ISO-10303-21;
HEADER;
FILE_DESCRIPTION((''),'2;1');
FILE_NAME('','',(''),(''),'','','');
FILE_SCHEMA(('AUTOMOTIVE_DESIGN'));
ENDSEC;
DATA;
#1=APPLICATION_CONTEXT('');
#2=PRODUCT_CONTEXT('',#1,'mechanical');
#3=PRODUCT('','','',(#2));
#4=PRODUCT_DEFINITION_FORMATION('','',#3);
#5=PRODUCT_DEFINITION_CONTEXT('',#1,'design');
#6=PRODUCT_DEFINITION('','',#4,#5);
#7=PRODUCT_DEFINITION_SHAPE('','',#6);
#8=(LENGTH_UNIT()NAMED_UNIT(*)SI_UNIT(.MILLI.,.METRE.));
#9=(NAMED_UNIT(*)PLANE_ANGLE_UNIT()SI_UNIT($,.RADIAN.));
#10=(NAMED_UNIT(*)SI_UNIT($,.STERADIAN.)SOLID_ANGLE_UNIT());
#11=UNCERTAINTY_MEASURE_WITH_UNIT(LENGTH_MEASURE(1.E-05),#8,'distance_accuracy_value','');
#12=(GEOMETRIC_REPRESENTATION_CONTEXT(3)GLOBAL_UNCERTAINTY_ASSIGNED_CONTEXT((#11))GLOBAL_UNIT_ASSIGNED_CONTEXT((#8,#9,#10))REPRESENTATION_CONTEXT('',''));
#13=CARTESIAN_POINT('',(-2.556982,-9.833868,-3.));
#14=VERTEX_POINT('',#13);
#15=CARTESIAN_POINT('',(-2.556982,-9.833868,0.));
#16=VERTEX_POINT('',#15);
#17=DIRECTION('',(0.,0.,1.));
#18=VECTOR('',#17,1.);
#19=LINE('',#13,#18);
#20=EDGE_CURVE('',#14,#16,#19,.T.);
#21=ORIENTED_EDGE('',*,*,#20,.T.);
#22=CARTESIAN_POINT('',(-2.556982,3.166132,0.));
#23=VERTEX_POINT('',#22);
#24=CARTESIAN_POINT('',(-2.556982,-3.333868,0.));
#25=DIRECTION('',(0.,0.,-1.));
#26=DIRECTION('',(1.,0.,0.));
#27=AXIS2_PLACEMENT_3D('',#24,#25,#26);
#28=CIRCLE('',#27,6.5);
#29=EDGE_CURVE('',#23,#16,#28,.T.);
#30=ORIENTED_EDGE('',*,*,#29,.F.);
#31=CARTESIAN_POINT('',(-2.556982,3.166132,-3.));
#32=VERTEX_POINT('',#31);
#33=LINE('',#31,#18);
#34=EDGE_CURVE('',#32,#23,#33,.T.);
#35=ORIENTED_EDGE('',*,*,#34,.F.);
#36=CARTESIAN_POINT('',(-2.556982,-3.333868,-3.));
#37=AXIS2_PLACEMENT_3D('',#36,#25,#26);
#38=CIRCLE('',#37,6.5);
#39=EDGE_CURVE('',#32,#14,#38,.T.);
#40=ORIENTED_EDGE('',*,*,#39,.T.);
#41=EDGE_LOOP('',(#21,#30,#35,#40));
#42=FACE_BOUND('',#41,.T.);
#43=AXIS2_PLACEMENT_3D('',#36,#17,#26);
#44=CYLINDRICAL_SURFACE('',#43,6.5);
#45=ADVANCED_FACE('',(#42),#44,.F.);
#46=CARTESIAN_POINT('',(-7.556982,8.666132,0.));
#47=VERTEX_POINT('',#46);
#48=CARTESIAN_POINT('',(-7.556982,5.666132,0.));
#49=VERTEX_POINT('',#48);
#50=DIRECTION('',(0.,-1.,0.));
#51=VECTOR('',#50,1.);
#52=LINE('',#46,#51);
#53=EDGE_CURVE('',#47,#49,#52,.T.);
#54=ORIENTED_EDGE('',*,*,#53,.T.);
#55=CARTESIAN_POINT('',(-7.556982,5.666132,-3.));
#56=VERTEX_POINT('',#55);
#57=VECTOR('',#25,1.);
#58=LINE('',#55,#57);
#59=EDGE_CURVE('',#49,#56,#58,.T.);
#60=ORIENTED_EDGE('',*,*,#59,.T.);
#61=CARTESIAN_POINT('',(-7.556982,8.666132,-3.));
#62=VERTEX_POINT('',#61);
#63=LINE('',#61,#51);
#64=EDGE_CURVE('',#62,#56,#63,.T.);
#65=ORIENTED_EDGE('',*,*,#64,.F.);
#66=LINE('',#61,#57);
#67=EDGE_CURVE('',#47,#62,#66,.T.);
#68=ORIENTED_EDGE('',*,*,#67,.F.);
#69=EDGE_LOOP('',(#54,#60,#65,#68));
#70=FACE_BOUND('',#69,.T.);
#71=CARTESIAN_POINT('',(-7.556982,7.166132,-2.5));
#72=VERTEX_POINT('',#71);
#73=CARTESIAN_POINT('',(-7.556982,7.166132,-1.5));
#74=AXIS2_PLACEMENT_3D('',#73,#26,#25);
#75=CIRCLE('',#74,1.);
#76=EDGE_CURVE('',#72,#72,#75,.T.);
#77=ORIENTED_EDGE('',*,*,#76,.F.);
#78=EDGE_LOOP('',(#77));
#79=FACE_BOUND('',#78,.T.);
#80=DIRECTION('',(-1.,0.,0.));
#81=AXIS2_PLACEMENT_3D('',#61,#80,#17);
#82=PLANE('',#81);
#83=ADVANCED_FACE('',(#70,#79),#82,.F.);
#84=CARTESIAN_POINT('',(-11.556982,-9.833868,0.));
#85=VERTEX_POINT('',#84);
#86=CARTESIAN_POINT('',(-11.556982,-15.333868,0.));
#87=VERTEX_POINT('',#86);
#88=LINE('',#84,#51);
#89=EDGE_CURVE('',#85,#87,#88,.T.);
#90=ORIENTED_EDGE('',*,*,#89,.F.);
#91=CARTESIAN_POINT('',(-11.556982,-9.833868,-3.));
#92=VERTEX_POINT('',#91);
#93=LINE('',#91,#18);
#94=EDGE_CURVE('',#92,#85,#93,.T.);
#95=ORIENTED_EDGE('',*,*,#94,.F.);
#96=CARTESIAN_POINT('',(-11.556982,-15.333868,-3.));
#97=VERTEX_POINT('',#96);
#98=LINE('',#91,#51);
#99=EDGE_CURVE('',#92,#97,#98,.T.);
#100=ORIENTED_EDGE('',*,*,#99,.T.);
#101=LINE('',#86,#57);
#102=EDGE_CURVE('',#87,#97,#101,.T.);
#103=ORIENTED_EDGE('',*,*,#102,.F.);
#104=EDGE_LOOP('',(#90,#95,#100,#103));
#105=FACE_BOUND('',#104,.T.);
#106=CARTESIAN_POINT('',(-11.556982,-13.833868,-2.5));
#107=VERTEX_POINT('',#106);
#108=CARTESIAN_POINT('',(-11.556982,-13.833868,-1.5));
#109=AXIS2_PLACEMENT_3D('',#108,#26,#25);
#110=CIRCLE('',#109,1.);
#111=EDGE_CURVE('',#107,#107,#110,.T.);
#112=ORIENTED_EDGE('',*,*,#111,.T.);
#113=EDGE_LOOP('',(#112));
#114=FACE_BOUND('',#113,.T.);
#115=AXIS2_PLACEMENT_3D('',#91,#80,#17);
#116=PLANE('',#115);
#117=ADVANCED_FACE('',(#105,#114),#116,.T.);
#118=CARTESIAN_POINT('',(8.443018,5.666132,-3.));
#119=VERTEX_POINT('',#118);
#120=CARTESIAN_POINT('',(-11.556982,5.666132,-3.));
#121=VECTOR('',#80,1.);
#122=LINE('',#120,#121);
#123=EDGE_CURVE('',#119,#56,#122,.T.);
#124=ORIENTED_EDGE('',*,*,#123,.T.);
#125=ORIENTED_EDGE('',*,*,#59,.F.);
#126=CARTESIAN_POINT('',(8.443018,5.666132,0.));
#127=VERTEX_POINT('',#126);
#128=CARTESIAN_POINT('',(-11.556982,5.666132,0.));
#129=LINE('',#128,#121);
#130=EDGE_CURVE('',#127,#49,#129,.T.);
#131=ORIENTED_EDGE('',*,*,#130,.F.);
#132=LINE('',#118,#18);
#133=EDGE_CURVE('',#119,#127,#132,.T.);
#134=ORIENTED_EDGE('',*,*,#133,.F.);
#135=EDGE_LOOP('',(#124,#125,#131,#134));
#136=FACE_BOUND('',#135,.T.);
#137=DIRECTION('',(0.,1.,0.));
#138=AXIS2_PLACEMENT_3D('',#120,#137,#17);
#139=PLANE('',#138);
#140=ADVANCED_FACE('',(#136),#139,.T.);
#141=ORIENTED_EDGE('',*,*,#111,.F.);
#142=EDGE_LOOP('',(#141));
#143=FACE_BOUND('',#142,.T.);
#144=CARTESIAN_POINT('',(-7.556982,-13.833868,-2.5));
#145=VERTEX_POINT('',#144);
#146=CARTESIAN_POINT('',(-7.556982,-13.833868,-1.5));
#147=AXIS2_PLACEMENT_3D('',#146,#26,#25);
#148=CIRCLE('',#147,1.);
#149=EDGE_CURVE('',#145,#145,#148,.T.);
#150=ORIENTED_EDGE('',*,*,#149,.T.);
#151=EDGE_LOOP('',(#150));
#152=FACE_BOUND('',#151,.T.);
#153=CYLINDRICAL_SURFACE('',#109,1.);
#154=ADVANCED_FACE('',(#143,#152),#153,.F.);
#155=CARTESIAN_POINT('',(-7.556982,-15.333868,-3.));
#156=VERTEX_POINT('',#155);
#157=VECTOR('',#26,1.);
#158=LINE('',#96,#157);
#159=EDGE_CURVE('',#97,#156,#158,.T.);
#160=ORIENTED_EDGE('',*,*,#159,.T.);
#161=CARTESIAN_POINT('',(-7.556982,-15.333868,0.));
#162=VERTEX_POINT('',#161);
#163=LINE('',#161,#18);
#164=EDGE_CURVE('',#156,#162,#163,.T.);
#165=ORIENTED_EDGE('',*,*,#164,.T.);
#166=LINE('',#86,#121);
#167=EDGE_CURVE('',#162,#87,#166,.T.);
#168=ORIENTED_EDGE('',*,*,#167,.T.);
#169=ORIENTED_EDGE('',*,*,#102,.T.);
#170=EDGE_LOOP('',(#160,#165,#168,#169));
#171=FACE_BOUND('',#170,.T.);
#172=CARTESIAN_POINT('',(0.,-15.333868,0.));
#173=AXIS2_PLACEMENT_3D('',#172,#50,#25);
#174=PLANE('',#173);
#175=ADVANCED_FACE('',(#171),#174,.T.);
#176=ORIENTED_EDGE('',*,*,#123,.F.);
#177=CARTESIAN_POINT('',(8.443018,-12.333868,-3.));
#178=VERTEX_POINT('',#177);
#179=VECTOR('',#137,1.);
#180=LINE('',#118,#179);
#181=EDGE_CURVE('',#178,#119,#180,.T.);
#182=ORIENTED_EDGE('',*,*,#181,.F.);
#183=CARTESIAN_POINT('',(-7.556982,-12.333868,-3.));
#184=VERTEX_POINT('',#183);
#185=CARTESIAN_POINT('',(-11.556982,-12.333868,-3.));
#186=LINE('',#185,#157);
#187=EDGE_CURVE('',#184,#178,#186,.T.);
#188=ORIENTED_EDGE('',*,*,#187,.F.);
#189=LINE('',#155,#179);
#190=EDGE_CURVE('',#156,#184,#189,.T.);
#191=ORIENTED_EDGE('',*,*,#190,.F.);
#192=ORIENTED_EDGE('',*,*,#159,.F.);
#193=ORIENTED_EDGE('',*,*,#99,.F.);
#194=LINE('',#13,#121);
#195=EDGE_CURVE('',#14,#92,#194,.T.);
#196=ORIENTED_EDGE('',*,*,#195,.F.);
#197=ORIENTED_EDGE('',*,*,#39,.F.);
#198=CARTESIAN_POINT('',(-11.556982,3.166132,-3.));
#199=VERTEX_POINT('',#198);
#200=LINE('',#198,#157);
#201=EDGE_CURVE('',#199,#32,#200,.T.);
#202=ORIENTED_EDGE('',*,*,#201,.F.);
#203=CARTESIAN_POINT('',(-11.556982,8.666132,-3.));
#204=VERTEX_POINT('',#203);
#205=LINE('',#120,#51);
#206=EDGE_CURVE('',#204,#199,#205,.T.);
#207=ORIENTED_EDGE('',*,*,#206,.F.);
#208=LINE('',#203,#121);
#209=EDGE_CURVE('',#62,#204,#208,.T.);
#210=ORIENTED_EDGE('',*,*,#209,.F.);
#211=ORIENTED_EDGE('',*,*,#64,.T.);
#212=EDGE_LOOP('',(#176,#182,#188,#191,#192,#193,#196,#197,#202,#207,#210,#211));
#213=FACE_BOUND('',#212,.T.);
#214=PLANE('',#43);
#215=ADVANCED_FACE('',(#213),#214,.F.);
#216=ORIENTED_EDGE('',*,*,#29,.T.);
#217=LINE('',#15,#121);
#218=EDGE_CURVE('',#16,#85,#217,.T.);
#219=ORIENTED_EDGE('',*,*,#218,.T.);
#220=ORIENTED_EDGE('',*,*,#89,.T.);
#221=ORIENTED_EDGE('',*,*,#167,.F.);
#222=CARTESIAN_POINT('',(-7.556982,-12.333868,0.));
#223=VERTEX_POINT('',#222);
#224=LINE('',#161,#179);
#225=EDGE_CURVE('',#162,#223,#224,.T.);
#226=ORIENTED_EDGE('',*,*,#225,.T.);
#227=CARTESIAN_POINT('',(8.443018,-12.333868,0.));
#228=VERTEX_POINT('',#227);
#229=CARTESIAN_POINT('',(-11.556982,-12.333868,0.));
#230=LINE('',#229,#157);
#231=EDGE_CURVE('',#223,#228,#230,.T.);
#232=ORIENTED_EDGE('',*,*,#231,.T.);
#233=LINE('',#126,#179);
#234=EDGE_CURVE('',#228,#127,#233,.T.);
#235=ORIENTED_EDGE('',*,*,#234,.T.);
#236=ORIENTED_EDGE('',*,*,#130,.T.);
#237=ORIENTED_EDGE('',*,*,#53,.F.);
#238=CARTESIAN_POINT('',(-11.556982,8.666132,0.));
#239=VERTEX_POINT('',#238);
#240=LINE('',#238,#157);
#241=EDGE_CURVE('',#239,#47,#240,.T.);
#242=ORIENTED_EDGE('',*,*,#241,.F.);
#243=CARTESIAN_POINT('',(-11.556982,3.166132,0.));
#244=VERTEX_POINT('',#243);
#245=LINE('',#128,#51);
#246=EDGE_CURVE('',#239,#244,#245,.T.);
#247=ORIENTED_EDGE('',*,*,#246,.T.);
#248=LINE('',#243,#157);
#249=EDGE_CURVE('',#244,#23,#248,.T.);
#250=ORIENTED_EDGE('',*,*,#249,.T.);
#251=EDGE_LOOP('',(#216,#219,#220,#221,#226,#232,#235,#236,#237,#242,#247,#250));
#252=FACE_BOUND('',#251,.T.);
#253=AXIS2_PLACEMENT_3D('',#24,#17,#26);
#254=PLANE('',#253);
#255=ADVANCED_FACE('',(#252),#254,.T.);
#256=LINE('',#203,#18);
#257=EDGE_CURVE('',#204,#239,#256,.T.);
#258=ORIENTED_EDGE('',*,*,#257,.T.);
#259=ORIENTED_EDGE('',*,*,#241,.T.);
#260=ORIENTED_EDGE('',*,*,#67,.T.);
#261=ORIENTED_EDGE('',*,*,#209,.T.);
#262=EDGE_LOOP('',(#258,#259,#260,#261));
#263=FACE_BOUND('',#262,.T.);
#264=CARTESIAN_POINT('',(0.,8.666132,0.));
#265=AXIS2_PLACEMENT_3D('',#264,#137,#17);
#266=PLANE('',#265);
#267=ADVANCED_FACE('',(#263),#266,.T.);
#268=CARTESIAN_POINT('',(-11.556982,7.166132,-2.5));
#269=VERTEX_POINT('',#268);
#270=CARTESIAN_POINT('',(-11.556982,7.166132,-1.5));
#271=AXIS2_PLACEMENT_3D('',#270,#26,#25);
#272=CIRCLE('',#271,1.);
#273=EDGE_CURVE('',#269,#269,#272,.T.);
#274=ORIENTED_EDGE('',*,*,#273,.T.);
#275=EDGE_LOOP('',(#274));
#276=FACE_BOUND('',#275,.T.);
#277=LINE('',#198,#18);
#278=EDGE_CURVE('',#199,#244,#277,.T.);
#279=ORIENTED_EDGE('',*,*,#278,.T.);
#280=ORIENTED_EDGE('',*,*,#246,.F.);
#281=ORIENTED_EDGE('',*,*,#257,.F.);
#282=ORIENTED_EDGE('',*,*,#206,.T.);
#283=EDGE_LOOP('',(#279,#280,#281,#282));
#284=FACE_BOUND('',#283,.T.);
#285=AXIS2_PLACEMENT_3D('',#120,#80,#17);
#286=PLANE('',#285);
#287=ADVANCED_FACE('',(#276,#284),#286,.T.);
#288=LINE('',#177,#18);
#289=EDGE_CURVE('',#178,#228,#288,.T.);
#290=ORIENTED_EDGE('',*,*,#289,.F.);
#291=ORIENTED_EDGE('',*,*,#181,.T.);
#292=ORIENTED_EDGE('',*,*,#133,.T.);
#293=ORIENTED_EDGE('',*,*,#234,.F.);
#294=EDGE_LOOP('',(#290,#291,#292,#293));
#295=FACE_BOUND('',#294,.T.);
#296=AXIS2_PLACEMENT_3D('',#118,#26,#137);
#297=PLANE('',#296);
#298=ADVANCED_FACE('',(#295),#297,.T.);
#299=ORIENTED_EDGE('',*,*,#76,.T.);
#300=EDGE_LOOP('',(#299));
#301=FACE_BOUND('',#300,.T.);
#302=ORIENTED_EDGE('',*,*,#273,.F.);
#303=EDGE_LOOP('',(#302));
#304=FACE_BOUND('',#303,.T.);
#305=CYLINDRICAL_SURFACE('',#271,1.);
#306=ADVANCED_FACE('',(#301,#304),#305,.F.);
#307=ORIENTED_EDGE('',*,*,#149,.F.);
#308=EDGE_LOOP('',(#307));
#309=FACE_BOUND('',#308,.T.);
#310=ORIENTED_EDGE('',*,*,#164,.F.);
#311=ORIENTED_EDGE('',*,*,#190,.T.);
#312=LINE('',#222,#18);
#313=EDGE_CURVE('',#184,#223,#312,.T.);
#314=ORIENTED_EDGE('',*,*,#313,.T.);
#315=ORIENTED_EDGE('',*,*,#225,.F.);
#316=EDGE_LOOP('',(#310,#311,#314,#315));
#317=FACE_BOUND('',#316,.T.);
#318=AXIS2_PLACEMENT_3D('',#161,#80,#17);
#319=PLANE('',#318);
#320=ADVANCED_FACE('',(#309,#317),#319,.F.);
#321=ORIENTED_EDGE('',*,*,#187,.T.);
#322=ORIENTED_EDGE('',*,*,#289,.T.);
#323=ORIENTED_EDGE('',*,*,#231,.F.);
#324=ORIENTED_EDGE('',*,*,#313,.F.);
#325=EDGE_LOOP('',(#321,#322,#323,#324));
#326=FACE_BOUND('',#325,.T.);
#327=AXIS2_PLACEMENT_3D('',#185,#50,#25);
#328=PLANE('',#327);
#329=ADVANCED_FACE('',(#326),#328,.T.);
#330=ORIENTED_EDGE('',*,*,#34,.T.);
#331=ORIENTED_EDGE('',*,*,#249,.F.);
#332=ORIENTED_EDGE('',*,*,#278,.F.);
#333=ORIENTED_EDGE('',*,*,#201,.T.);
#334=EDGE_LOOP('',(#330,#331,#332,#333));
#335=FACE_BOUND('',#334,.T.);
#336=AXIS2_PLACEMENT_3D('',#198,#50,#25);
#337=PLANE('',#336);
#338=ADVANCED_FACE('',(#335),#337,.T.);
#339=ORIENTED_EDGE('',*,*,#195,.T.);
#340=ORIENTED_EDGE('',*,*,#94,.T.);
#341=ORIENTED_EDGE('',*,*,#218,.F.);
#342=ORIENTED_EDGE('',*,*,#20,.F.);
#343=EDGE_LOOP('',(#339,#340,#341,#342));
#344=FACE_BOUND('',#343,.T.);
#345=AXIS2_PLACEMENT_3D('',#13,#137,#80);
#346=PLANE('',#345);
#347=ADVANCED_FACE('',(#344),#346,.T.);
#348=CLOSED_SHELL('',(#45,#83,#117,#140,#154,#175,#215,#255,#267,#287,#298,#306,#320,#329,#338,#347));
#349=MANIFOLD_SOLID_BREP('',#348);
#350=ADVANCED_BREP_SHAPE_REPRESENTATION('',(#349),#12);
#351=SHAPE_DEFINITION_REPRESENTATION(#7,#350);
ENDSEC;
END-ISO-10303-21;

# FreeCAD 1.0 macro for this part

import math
import FreeCAD as App
import Part
import Sketcher
from FreeCAD import Vector
Q = App.Units.Quantity


def add_polygon(sketch, points):
    """Adds a closed chain of lines whose ends are joined by coincident constraints."""
    first, n = sketch.GeometryCount, len(points)
    for a, b in zip(points, points[1:] + points[:1]):
        sketch.addGeometry(Part.LineSegment(App.Vector(*a, 0), App.Vector(*b, 0)), False)
    for i in range(n):
        sketch.addConstraint(Sketcher.Constraint("Coincident", first + i, 2, first + (i + 1) % n, 1))

doc = App.newDocument("Part")
body = doc.addObject("PartDesign::Body", "Body")

sketch1 = doc.addObject("Sketcher::SketchObject", "Sketch")
body.addObject(sketch1)
sketch1.AttachmentSupport = (doc.XY_Plane, [""])
sketch1.MapMode = "FlatFace"
sketch1.addGeometry([
    Part.LineSegment(Vector(-11.556982, -12.333868, 0), Vector(8.443018, -12.333868, 0)),
    Part.LineSegment(Vector(8.443018, -12.333868, 0), Vector(8.443018, 5.666132, 0)),
    Part.LineSegment(Vector(8.443018, 5.666132, 0), Vector(-11.556982, 5.666132, 0)),
    Part.LineSegment(Vector(-11.556982, 5.666132, 0), Vector(-11.556982, 3.166132, 0)),
    Part.LineSegment(Vector(-11.556982, 3.166132, 0), Vector(-2.556982, 3.166132, 0)),
    Part.ArcOfCircle(Part.Circle(Vector(-2.556982, -3.333868, 0), Vector(0, 0, 1), 6.5), math.radians(-90), math.radians(90)),
    Part.LineSegment(Vector(-2.556982, -9.833868, 0), Vector(-11.556982, -9.833868, 0)),
    Part.LineSegment(Vector(-11.556982, -9.833868, 0), Vector(-11.556982, -12.333868, 0)),
], False)
sketch1.addConstraint([
    Sketcher.Constraint("Coincident", 0, 2, 1, 1),
    Sketcher.Constraint("Coincident", 1, 2, 2, 1),
    Sketcher.Constraint("Coincident", 2, 2, 3, 1),
    Sketcher.Constraint("Coincident", 3, 2, 4, 1),
    Sketcher.Constraint("Tangent", 4, 2, 5, 2),
    Sketcher.Constraint("Tangent", 5, 1, 6, 1),
    Sketcher.Constraint("Coincident", 6, 2, 7, 1),
    Sketcher.Constraint("Coincident", 7, 2, 0, 1),
    Sketcher.Constraint("Horizontal", 0),
    Sketcher.Constraint("Vertical", 1),
    Sketcher.Constraint("Horizontal", 2),
    Sketcher.Constraint("Vertical", 3),
    Sketcher.Constraint("Horizontal", 4),
    Sketcher.Constraint("Horizontal", 6),
    Sketcher.Constraint("Vertical", 7),
    Sketcher.Constraint("Vertical", 3, 2, 6, 2),
    Sketcher.Constraint("Equal", 3, 7),
    Sketcher.Constraint("Radius", 5, Q("6.5 mm")),
    Sketcher.Constraint("DistanceX", 0, 1, 0, 2, Q("20 mm")),
    Sketcher.Constraint("DistanceX", 4, 1, 4, 2, Q("9 mm")),
    Sketcher.Constraint("DistanceY", 1, 1, 1, 2, Q("18 mm")),
    Sketcher.Constraint("DistanceY", 5, 3, -1, 1, Q("3.333868 mm")),
    Sketcher.Constraint("DistanceX", 5, 3, -1, 1, Q("2.556982 mm")),
])
pad1 = doc.addObject("PartDesign::Pad", "Pad")
body.addObject(pad1)
pad1.Profile = sketch1
pad1.Length = 3
pad1.Reversed = True

sketch2 = doc.addObject("Sketcher::SketchObject", "Sketch001")
body.addObject(sketch2)
sketch2.AttachmentSupport = (doc.XZ_Plane, [""])
sketch2.MapMode = "FlatFace"
sketch2.AttachmentOffset = App.Placement(Vector(0, 0, -5.666132), App.Rotation())
add_polygon(sketch2, [(-11.556982, -3), (-11.556982, 0), (-7.556982, 0), (-7.556982, -3)])
sketch2.addConstraint([
    Sketcher.Constraint("Vertical", 0),
    Sketcher.Constraint("Horizontal", 1),
    Sketcher.Constraint("Vertical", 2),
    Sketcher.Constraint("Horizontal", 3),
    Sketcher.Constraint("PointOnObject", 0, 2, -1),
    Sketcher.Constraint("DistanceX", 1, 1, 1, 2, Q("4 mm")),
    Sketcher.Constraint("DistanceY", 0, 1, 0, 2, Q("3 mm")),
    Sketcher.Constraint("DistanceX", 0, 2, -1, 1, Q("11.556982 mm")),
])
pad2 = doc.addObject("PartDesign::Pad", "Pad001")
body.addObject(pad2)
pad2.Profile = sketch2
pad2.Length = 3
pad2.Reversed = True

sketch3 = doc.addObject("Sketcher::SketchObject", "Sketch002")
body.addObject(sketch3)
sketch3.AttachmentSupport = (doc.XZ_Plane, [""])
sketch3.MapMode = "FlatFace"
sketch3.AttachmentOffset = App.Placement(Vector(0, 0, 12.333868), App.Rotation())
add_polygon(sketch3, [(-11.556982, 0), (-11.556982, -3), (-7.556982, -3), (-7.556982, 0)])
sketch3.addConstraint([
    Sketcher.Constraint("Vertical", 0),
    Sketcher.Constraint("Horizontal", 1),
    Sketcher.Constraint("Vertical", 2),
    Sketcher.Constraint("Horizontal", 3),
    Sketcher.Constraint("PointOnObject", 2, 2, -1),
    Sketcher.Constraint("DistanceX", 1, 1, 1, 2, Q("4 mm")),
    Sketcher.Constraint("DistanceY", 0, 2, 0, 1, Q("3 mm")),
    Sketcher.Constraint("DistanceX", 0, 2, -1, 1, Q("11.556982 mm")),
])
pad3 = doc.addObject("PartDesign::Pad", "Pad002")
body.addObject(pad3)
pad3.Profile = sketch3
pad3.Length = 3

sketch4 = doc.addObject("Sketcher::SketchObject", "Sketch003")
body.addObject(sketch4)
sketch4.AttachmentSupport = (doc.YZ_Plane, [""])
sketch4.MapMode = "FlatFace"
sketch4.AttachmentOffset = App.Placement(Vector(0, 0, -7.556982), App.Rotation())
sketch4.addGeometry(Part.Circle(Vector(7.166132, -1.5, 0), Vector(0, 0, 1), 1), False)
sketch4.addConstraint([
    Sketcher.Constraint("Diameter", 0, Q("2 mm")),
    Sketcher.Constraint("DistanceY", 0, 3, -1, 1, Q("1.5 mm")),
    Sketcher.Constraint("DistanceX", -1, 1, 0, 3, Q("7.166132 mm")),
])
pocket1 = doc.addObject("PartDesign::Pocket", "Pocket")
body.addObject(pocket1)
pocket1.Profile = sketch4
pocket1.Type = "ThroughAll"

sketch5 = doc.addObject("Sketcher::SketchObject", "Sketch004")
body.addObject(sketch5)
sketch5.AttachmentSupport = (doc.YZ_Plane, [""])
sketch5.MapMode = "FlatFace"
sketch5.AttachmentOffset = App.Placement(Vector(0, 0, -7.556982), App.Rotation())
sketch5.addGeometry(Part.Circle(Vector(-13.833868, -1.5, 0), Vector(0, 0, 1), 1), False)
sketch5.addConstraint([
    Sketcher.Constraint("Diameter", 0, Q("2 mm")),
    Sketcher.Constraint("DistanceY", 0, 3, -1, 1, Q("1.5 mm")),
    Sketcher.Constraint("DistanceX", 0, 3, -1, 1, Q("13.833868 mm")),
])
pocket2 = doc.addObject("PartDesign::Pocket", "Pocket001")
body.addObject(pocket2)
pocket2.Profile = sketch5
pocket2.Type = "ThroughAll"

doc.recompute()
